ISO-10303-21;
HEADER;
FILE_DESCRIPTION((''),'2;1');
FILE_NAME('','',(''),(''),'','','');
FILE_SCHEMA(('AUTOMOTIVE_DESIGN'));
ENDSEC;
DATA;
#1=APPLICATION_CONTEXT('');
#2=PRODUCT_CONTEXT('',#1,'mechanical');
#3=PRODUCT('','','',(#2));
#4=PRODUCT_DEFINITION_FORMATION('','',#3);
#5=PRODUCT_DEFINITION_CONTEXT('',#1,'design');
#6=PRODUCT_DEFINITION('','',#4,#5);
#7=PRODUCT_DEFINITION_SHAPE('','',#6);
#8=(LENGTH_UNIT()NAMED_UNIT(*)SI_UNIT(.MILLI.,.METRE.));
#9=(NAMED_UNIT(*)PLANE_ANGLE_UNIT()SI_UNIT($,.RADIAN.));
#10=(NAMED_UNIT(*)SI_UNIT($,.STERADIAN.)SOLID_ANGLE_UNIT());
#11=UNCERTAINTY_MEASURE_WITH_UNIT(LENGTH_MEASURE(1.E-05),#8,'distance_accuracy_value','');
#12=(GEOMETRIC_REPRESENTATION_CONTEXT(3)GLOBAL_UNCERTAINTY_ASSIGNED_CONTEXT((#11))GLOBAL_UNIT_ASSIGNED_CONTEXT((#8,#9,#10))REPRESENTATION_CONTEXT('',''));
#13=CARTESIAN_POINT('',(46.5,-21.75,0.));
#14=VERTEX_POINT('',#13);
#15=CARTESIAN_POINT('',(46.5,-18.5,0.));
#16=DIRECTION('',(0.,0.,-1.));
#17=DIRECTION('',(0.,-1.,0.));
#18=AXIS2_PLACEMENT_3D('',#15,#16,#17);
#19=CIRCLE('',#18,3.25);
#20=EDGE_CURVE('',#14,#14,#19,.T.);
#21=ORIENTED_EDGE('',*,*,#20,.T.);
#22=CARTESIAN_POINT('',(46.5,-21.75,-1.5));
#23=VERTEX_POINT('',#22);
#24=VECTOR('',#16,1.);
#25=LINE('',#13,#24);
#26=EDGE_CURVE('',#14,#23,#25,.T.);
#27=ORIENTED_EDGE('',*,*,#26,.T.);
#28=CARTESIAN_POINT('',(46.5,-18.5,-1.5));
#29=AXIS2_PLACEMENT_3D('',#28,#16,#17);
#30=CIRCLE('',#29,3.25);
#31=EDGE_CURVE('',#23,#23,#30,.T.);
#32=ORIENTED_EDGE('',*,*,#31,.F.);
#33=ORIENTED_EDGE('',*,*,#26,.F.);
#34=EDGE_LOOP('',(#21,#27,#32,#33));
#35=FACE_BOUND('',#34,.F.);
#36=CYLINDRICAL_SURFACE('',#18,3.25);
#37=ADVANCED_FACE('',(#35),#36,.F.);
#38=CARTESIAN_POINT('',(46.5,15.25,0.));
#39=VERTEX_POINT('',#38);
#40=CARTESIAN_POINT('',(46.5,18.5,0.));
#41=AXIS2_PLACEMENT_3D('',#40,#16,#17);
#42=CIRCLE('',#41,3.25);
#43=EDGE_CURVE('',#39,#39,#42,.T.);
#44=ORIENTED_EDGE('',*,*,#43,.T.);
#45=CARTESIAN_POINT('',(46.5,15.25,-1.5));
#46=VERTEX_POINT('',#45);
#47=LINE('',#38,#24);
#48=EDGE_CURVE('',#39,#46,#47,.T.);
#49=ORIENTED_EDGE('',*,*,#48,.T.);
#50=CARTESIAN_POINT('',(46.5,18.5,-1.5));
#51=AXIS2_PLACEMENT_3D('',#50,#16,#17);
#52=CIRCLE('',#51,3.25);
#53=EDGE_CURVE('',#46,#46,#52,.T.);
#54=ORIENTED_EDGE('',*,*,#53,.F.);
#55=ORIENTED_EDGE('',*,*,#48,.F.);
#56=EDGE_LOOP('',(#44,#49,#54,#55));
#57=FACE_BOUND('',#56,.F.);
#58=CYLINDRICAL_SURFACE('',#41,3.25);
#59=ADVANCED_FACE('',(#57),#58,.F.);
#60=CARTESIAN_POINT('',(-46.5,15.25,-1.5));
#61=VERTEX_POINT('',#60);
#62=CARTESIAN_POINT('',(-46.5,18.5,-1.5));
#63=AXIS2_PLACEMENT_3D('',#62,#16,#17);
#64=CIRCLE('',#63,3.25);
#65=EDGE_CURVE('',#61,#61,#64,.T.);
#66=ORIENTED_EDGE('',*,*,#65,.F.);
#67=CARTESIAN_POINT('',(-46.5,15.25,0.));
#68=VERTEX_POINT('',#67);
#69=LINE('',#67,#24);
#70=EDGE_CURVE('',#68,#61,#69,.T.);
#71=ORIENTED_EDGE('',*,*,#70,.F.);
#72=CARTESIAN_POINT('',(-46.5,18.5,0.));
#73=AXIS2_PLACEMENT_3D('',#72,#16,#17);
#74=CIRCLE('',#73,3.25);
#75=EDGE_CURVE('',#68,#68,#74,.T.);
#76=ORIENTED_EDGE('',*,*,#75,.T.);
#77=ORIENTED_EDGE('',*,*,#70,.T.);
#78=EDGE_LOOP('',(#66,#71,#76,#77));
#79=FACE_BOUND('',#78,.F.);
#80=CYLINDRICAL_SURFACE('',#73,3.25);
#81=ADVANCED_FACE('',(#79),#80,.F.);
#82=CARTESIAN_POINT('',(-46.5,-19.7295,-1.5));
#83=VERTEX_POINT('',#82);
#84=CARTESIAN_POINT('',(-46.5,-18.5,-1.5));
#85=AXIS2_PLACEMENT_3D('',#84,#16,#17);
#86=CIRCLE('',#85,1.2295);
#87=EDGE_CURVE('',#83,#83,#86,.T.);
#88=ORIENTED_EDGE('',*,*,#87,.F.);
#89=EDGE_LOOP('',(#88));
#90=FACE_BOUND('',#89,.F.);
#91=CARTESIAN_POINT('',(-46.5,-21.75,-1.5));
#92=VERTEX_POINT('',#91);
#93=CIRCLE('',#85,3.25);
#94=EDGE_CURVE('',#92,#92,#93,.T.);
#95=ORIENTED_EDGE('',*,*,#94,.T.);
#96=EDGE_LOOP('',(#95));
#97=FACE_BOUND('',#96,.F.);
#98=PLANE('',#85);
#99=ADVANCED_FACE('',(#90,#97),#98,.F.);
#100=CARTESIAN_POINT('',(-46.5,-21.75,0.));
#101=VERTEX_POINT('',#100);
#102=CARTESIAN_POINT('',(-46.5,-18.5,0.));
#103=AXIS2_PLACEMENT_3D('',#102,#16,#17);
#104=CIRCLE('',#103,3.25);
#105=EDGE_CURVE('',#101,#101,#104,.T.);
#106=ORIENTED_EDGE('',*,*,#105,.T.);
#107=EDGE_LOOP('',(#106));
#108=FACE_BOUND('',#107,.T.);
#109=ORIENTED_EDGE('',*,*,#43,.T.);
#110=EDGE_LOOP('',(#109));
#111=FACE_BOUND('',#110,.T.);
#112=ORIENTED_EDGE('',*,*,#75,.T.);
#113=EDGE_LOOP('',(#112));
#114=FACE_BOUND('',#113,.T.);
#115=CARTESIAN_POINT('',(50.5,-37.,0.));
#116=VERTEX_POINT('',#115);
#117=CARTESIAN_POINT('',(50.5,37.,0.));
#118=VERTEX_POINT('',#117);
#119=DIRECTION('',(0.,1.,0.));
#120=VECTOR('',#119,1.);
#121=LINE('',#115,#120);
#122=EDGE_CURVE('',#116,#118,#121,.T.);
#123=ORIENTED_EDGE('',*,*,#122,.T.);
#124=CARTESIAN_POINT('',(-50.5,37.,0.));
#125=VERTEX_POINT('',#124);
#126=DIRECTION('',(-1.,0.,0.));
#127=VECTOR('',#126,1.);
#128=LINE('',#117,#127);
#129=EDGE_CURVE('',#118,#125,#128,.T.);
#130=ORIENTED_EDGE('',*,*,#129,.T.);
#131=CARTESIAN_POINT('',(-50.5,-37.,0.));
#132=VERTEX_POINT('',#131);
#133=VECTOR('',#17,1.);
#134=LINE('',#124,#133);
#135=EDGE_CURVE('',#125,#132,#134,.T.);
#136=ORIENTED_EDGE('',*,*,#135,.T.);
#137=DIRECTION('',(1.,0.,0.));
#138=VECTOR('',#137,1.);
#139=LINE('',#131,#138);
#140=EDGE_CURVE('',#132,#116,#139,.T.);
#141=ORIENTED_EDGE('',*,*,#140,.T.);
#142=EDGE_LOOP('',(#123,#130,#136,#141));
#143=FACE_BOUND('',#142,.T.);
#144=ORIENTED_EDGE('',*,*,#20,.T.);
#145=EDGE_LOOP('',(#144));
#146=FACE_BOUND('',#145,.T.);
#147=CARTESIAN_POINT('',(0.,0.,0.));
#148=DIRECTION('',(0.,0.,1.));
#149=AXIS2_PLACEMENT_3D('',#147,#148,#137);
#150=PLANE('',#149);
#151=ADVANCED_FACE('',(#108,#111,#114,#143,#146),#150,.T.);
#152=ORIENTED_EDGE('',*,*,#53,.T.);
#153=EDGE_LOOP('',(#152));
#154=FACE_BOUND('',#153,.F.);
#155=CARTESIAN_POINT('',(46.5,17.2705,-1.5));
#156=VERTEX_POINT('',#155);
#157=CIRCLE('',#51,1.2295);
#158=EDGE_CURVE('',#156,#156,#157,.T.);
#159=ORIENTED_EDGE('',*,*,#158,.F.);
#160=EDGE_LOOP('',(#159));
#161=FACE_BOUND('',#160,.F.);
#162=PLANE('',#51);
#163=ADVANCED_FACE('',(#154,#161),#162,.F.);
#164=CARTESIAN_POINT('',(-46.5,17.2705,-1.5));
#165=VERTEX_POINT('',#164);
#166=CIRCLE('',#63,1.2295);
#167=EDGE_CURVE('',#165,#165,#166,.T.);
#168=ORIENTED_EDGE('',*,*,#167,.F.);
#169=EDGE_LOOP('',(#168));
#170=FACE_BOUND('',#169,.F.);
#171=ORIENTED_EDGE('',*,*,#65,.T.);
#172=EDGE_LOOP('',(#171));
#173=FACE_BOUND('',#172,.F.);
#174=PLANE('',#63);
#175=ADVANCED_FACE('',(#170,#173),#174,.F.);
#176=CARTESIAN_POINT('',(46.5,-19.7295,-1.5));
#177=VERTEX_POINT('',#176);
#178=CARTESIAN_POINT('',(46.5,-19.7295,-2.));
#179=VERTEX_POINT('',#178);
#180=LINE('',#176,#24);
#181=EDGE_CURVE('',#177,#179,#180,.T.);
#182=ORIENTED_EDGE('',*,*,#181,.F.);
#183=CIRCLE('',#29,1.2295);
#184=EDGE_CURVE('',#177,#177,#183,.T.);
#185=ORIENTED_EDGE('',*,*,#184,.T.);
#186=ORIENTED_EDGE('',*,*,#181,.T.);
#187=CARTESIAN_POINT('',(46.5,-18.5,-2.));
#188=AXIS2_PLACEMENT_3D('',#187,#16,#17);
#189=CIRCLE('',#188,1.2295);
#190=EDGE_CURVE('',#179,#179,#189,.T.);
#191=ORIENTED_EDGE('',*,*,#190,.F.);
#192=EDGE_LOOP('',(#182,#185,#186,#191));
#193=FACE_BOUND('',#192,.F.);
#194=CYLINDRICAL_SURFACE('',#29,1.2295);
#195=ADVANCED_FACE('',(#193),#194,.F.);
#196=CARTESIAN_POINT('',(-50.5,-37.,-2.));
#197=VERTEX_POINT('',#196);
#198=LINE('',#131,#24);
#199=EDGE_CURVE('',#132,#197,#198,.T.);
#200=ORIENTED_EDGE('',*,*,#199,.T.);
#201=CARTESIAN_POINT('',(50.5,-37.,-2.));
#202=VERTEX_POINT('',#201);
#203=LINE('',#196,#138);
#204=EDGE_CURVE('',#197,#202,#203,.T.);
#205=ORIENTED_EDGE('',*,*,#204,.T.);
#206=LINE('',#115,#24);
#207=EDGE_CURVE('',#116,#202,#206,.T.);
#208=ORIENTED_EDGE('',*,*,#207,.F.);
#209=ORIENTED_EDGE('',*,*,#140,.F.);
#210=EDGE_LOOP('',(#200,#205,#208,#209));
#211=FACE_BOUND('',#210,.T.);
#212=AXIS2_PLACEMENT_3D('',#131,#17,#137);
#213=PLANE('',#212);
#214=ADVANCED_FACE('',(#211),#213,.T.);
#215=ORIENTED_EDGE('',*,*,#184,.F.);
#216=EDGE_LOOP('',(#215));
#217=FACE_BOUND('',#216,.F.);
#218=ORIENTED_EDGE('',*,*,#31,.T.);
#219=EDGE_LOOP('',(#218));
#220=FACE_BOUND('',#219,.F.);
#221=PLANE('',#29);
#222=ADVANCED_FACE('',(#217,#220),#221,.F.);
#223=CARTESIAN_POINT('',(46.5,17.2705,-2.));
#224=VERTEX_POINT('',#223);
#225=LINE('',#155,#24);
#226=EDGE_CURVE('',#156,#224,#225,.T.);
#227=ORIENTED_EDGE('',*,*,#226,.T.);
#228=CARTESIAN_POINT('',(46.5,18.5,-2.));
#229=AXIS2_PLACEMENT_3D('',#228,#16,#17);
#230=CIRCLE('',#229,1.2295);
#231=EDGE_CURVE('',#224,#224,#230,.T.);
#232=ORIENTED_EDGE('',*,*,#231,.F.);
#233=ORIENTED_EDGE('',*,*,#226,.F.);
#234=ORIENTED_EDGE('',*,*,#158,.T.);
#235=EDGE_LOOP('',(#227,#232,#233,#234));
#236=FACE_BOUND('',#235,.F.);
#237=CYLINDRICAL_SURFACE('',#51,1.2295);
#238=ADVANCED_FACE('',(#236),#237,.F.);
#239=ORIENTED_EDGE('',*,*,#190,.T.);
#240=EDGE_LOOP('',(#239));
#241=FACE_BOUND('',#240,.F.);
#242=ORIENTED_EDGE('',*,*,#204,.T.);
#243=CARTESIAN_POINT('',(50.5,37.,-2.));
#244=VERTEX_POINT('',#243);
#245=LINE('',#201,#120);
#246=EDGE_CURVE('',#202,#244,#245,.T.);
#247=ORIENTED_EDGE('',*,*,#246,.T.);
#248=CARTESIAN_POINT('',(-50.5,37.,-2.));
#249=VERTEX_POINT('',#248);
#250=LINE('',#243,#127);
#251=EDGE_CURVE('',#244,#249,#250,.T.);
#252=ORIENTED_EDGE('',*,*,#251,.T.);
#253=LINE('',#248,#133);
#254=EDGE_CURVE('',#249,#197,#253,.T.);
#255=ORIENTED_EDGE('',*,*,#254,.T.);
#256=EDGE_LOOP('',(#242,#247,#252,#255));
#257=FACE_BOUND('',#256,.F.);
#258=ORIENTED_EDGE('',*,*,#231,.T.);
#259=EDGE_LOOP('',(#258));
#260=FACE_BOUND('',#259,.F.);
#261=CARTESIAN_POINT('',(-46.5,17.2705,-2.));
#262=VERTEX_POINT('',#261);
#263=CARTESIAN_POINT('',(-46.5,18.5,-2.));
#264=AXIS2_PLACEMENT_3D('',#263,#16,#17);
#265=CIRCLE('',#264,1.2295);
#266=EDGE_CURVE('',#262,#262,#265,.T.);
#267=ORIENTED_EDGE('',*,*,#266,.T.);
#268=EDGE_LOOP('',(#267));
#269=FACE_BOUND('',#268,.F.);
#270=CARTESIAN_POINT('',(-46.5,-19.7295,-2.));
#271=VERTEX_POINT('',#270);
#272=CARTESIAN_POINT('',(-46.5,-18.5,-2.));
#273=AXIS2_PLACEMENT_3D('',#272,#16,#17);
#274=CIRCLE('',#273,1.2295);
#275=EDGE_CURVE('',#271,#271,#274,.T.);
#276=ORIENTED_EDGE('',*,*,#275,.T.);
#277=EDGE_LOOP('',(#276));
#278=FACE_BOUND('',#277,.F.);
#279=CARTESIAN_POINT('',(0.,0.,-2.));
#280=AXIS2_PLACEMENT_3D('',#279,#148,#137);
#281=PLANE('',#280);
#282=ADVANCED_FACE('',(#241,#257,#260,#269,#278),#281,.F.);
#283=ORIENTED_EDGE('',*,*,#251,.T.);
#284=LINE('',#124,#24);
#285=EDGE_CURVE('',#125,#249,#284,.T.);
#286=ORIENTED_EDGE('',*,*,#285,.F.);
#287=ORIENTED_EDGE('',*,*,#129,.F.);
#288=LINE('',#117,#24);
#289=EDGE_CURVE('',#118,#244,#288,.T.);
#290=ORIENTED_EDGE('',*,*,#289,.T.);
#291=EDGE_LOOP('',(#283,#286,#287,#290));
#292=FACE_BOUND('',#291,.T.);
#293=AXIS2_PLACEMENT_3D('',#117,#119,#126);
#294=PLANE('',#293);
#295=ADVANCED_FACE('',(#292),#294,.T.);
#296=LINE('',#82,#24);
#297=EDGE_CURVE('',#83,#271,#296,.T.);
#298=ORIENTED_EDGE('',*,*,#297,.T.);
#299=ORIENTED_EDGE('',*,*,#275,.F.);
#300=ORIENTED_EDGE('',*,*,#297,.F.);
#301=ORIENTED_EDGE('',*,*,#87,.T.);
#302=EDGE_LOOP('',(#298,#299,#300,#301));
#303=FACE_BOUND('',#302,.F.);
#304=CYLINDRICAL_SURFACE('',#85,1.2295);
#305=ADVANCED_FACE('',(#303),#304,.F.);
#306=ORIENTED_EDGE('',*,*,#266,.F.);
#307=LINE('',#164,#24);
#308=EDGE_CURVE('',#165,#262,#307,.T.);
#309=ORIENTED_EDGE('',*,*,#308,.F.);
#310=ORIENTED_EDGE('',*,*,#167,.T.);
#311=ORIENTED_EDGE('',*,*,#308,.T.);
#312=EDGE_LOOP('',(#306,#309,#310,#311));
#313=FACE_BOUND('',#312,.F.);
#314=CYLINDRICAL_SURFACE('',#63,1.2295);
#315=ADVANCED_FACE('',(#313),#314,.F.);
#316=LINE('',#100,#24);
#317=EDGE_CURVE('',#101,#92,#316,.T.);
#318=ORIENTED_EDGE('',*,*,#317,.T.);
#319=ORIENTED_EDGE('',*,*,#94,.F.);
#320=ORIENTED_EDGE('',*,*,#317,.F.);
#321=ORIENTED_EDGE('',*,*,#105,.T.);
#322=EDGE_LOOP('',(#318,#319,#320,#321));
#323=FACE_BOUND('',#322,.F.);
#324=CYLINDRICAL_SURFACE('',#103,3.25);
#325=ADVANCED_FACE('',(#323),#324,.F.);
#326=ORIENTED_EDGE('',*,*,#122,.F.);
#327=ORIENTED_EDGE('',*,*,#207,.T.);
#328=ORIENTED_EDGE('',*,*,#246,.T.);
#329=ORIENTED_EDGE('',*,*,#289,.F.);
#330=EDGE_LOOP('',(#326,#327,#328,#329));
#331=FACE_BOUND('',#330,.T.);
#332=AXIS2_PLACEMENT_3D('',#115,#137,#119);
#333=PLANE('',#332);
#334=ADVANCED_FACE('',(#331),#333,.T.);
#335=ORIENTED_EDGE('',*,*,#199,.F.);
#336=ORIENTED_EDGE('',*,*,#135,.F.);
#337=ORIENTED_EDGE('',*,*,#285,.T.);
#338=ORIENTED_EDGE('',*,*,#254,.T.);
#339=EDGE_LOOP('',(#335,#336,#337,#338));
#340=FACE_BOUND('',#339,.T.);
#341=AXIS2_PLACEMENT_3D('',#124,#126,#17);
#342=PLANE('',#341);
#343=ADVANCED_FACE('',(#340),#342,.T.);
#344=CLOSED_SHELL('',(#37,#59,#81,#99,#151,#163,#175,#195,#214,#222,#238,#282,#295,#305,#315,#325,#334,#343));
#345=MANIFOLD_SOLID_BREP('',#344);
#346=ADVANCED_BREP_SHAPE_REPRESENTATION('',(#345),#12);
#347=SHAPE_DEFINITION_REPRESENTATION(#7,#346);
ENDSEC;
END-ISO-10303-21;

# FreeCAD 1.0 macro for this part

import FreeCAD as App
import Part
import Sketcher
from FreeCAD import Vector

doc = App.newDocument("Part")
body = doc.addObject("PartDesign::Body", "Body")

# Sketch on XY plane
sketch1 = body.newObject("Sketcher::SketchObject", "Sketch")
sketch1.AttachmentSupport = (doc.getObject("XY_Plane"), [""])
sketch1.MapMode = "FlatFace"
sketch1.addGeometry([
    Part.LineSegment(Vector(-50.5, 37, 0), Vector(-50.5, -37, 0)),
    Part.LineSegment(Vector(-50.5, -37, 0), Vector(50.5, -37, 0)),
    Part.LineSegment(Vector(50.5, -37, 0), Vector(50.5, 37, 0)),
    Part.LineSegment(Vector(50.5, 37, 0), Vector(-50.5, 37, 0)),
], False)
sketch1.addConstraint([
    Sketcher.Constraint("Coincident", 0, 2, 1, 1),
    Sketcher.Constraint("Coincident", 1, 2, 2, 1),
    Sketcher.Constraint("Coincident", 2, 2, 3, 1),
    Sketcher.Constraint("Coincident", 3, 2, 0, 1),
    Sketcher.Constraint("Vertical", 0),
    Sketcher.Constraint("Horizontal", 1),
    Sketcher.Constraint("Vertical", 2),
    Sketcher.Constraint("Horizontal", 3),
    Sketcher.Constraint("Symmetric", 0, 2, 2, 2, -1, 1),
    Sketcher.Constraint("DistanceX", 1, 1, 1, 2, 101.0),
    Sketcher.Constraint("DistanceY", 0, 2, 0, 1, 74.0),
])
pad1 = body.newObject("PartDesign::Pad", "Pad")
pad1.Profile = sketch1
pad1.Length = 2
pad1.Reversed = True

# Sketch on XY plane
sketch2 = body.newObject("Sketcher::SketchObject", "Sketch001")
sketch2.AttachmentSupport = (doc.getObject("XY_Plane"), [""])
sketch2.MapMode = "FlatFace"
sketch2.addGeometry([
    Part.Circle(Vector(-46.5, 18.5, 0), Vector(0, 0, 1), 1.2295),
    Part.Circle(Vector(-46.5, -18.5, 0), Vector(0, 0, 1), 1.2295),
    Part.Circle(Vector(46.5, -18.5, 0), Vector(0, 0, 1), 1.2295),
    Part.Circle(Vector(46.5, 18.5, 0), Vector(0, 0, 1), 1.2295),
], False)
sketch2.addConstraint([
    Sketcher.Constraint("Equal", 0, 1),
    Sketcher.Constraint("Equal", 1, 2),
    Sketcher.Constraint("Equal", 2, 3),
    Sketcher.Constraint("Symmetric", 0, 3, 2, 3, -1, 1),
    Sketcher.Constraint("Symmetric", 1, 3, 3, 3, -1, 1),
    Sketcher.Constraint("Symmetric", 1, 3, 2, 3, -2),
    Sketcher.Constraint("Diameter", 0, 2.459),
    Sketcher.Constraint("DistanceY", 1, 3, 0, 3, 37.0),
    Sketcher.Constraint("DistanceX", 1, 3, 2, 3, 93.0),
])
doc.recompute()
hole = body.newObject("PartDesign::Hole", "Hole")
hole.Profile = sketch2
hole.ThreadType = "None"
hole.Diameter = 2.459
hole.DepthType = "ThroughAll"
hole.HoleCutType = "Counterbore"
hole.HoleCutDiameter = 6.5
hole.HoleCutDepth = 1.5

doc.recompute()
